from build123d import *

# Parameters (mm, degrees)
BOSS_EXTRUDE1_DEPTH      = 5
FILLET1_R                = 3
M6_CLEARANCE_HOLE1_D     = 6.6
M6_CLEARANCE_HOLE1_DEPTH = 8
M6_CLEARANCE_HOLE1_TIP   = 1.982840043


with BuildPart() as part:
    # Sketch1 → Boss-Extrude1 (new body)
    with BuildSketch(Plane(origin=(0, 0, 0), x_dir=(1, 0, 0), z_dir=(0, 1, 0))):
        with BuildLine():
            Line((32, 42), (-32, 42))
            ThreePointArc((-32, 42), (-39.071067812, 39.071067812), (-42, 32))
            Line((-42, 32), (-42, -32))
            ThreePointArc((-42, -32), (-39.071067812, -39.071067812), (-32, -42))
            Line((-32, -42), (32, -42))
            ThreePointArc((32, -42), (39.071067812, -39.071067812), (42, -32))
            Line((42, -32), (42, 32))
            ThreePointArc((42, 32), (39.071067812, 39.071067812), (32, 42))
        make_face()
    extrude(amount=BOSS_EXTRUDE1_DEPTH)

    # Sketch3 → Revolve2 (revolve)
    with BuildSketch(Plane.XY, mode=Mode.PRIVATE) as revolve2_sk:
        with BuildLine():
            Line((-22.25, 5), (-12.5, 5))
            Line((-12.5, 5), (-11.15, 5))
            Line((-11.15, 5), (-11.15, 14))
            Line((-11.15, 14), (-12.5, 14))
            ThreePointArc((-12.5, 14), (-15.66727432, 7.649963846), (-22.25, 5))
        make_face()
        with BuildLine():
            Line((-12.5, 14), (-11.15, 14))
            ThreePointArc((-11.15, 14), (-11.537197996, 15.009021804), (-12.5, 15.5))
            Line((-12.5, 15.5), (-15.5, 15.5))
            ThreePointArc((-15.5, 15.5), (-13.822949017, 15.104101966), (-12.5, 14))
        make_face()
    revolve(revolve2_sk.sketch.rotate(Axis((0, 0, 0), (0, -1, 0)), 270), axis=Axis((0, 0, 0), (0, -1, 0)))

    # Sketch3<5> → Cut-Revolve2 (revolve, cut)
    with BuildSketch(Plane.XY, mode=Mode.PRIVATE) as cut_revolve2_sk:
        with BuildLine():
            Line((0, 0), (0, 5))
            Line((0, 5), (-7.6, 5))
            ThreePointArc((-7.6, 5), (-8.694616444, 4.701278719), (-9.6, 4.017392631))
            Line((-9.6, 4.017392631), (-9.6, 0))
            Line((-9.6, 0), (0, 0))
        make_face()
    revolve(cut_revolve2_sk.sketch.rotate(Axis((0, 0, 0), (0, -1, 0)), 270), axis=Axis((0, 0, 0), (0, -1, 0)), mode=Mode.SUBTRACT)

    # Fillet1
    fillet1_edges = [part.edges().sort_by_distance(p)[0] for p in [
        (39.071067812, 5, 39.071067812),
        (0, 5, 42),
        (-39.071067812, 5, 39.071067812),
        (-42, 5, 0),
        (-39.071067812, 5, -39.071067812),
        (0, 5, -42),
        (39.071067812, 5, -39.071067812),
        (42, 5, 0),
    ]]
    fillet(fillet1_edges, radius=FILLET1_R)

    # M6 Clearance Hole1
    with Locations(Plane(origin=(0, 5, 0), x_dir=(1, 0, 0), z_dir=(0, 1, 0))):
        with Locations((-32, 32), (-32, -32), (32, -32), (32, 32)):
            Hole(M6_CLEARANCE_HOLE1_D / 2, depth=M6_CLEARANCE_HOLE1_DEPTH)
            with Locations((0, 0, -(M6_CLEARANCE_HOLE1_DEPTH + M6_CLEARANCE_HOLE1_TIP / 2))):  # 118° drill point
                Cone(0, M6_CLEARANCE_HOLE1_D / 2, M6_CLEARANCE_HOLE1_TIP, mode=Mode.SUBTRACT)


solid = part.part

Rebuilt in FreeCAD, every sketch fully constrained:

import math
import FreeCAD as App
import Part
import Sketcher


def edges_at(feature, points):
    """Names of the edges that pass closest to the given points."""
    edges = feature.Shape.Edges
    near = lambda p: min(range(len(edges)), key=lambda i: edges[i].distToShape(Part.Vertex(*p))[0])
    return sorted({f"Edge{near(p) + 1}" for p in points})

doc = App.newDocument("Part")
body = doc.addObject("PartDesign::Body", "Body")

sketch1 = body.newObject("Sketcher::SketchObject", "Sketch")
sketch1.AttachmentSupport = (doc.getObject("XZ_Plane"), [""])
sketch1.MapMode = "FlatFace"
sketch1.addGeometry([
    Part.LineSegment(App.Vector(32, -42, 0), App.Vector(-32, -42, 0)),
    Part.ArcOfCircle(Part.Circle(App.Vector(-32, -32, 0), App.Vector(0, 0, 1), 10), math.radians(180), math.radians(270)),
    Part.LineSegment(App.Vector(-42, -32, 0), App.Vector(-42, 32, 0)),
    Part.ArcOfCircle(Part.Circle(App.Vector(-32, 32, 0), App.Vector(0, 0, 1), 10), math.radians(90), math.radians(180)),
    Part.LineSegment(App.Vector(-32, 42, 0), App.Vector(32, 42, 0)),
    Part.ArcOfCircle(Part.Circle(App.Vector(32, 32, 0), App.Vector(0, 0, 1), 10), math.radians(0), math.radians(90)),
    Part.LineSegment(App.Vector(42, 32, 0), App.Vector(42, -32, 0)),
    Part.ArcOfCircle(Part.Circle(App.Vector(32, -32, 0), App.Vector(0, 0, 1), 10), math.radians(-90), math.radians(0)),
], False)
sketch1.addConstraint([
    Sketcher.Constraint("Tangent", 0, 2, 1, 2),
    Sketcher.Constraint("Tangent", 1, 1, 2, 1),
    Sketcher.Constraint("Tangent", 2, 2, 3, 2),
    Sketcher.Constraint("Tangent", 3, 1, 4, 1),
    Sketcher.Constraint("Tangent", 4, 2, 5, 2),
    Sketcher.Constraint("Tangent", 5, 1, 6, 1),
    Sketcher.Constraint("Tangent", 6, 2, 7, 2),
    Sketcher.Constraint("Tangent", 7, 1, 0, 1),
    Sketcher.Constraint("Horizontal", 0),
    Sketcher.Constraint("Vertical", 2),
    Sketcher.Constraint("Horizontal", 4),
    Sketcher.Constraint("Vertical", 6),
    Sketcher.Constraint("Equal", 1, 3),
    Sketcher.Constraint("Equal", 3, 5),
    Sketcher.Constraint("Equal", 5, 7),
    Sketcher.Constraint("Symmetric", 1, 3, 5, 3, -1, 1),
    Sketcher.Constraint("Equal", 4, 2),
    Sketcher.Constraint("Radius", 1, 10.0),
    Sketcher.Constraint("DistanceX", 0, 2, 0, 1, 64.0),
])
pad1 = body.newObject("PartDesign::Pad", "Pad")
pad1.Profile = sketch1
pad1.Length = 5
pad1.Reversed = True

sketch2 = body.newObject("Sketcher::SketchObject", "Sketch001")
sketch2.AttachmentSupport = (doc.getObject("XY_Plane"), [""])
sketch2.MapMode = "FlatFace"
sketch2.addGeometry([
    Part.LineSegment(App.Vector(-22.2, 5, 0), App.Vector(-11.2, 5, 0)),
    Part.LineSegment(App.Vector(-11.2, 5, 0), App.Vector(-11.2, 14, 0)),
    Part.ArcOfCircle(Part.Circle(App.Vector(-12.7, 14, 0), App.Vector(0, 0, 1), 1.5), math.radians(0), math.radians(84)),
    Part.LineSegment(App.Vector(-12.5, 15.5, 0), App.Vector(-15.5, 15.5, 0)),
    Part.ArcOfCircle(Part.Circle(App.Vector(-15.5, 11.7, 0), App.Vector(0, 0, 1), 3.8), math.radians(37), math.radians(90)),
    Part.ArcOfCircle(Part.Circle(App.Vector(-22.5, 15, 0), App.Vector(0, 0, 1), 10), math.radians(-89), math.radians(-6)),
], False)
sketch2.addConstraint([
    Sketcher.Constraint("Coincident", 0, 2, 1, 1),
    Sketcher.Constraint("Tangent", 1, 2, 2, 1),
    Sketcher.Constraint("Coincident", 2, 2, 3, 1),
    Sketcher.Constraint("Tangent", 3, 2, 4, 2),
    Sketcher.Constraint("Coincident", 4, 1, 5, 2),
    Sketcher.Constraint("Coincident", 5, 1, 0, 1),
    Sketcher.Constraint("Horizontal", 0),
    Sketcher.Constraint("Vertical", 1),
    Sketcher.Constraint("Horizontal", 3),
    Sketcher.Constraint("Horizontal", 1, 2, 4, 1),
    Sketcher.Constraint("Vertical", 2, 2, 4, 1),
    Sketcher.Constraint("Radius", 5, 10.0),
    Sketcher.Constraint("DistanceX", 3, 2, 3, 1, 3.0),
    Sketcher.Constraint("DistanceY", 1, 1, 1, 2, 9.0),
    Sketcher.Constraint("Radius", 4, 3.75),
    Sketcher.Constraint("DistanceX", 0, 1, 0, 2, 11.1),
    Sketcher.Constraint("DistanceY", -1, 1, 2, 3, 14.0),
    Sketcher.Constraint("DistanceX", 4, 3, -1, 1, 15.5),
    Sketcher.Constraint("DistanceX", 0, 2, -1, 1, 11.15),
])
revolution = body.newObject("PartDesign::Revolution", "Revolution")
revolution.Profile = sketch2
revolution.ReferenceAxis = (sketch2, ["V_Axis"])
revolution.Angle = 360

sketch3 = body.newObject("Sketcher::SketchObject", "Sketch002")
sketch3.AttachmentSupport = (doc.getObject("XY_Plane"), [""])
sketch3.MapMode = "FlatFace"
sketch3.addGeometry([
    Part.LineSegment(App.Vector(0, 0, 0), App.Vector(0, 5, 0)),
    Part.LineSegment(App.Vector(0, 5, 0), App.Vector(-7.6, 5, 0)),
    Part.ArcOfCircle(Part.Circle(App.Vector(-7.4, 2, 0), App.Vector(0, 0, 1), 3), math.radians(94), math.radians(138)),
    Part.LineSegment(App.Vector(-9.6, 4, 0), App.Vector(-9.6, 0, 0)),
    Part.LineSegment(App.Vector(-9.6, 0, 0), App.Vector(0, 0, 0)),
], False)
sketch3.addConstraint([
    Sketcher.Constraint("Coincident", 0, 2, 1, 1),
    Sketcher.Constraint("Coincident", 1, 2, 2, 1),
    Sketcher.Constraint("Coincident", 2, 2, 3, 1),
    Sketcher.Constraint("Coincident", 3, 2, 4, 1),
    Sketcher.Constraint("Coincident", 4, 2, 0, 1),
    Sketcher.Constraint("Vertical", 0),
    Sketcher.Constraint("Horizontal", 1),
    Sketcher.Constraint("Vertical", 3),
    Sketcher.Constraint("Horizontal", 4),
    Sketcher.Constraint("Coincident", 4, 2, -1, 1),
    Sketcher.Constraint("Radius", 2, 3.0),
    Sketcher.Constraint("DistanceY", 0, 1, 0, 2, 5.0),
    Sketcher.Constraint("DistanceX", 1, 2, 1, 1, 7.6),
    Sketcher.Constraint("DistanceX", 4, 1, 4, 2, 9.6),
    Sketcher.Constraint("DistanceY", 3, 2, 3, 1, 4.017393),
])
groove = body.newObject("PartDesign::Groove", "Groove")
groove.Profile = sketch3
groove.ReferenceAxis = (sketch3, ["V_Axis"])
groove.Angle = 360
doc.recompute()

fillet = body.newObject("PartDesign::Fillet", "Fillet")
fillet.Base = (groove, edges_at(groove, [
    (39.071, 5, 39.071),
    (0, 5, 42),
    (-39.071, 5, 39.071),
    (-42, 5, 0),
    (-39.071, 5, -39.071),
    (0, 5, -42),
    (39.071, 5, -39.071),
    (42, 5, 0),
]))
fillet.Radius = 3

sketch4 = body.newObject("Sketcher::SketchObject", "Sketch003")
sketch4.AttachmentSupport = (doc.getObject("XZ_Plane"), [""])
sketch4.MapMode = "FlatFace"
sketch4.AttachmentOffset = App.Placement(App.Vector(0, 0, -5), App.Rotation())
sketch4.addGeometry([
    Part.Circle(App.Vector(-32, -32, 0), App.Vector(0, 0, 1), 3.3),
    Part.Circle(App.Vector(-32, 32, 0), App.Vector(0, 0, 1), 3.3),
    Part.Circle(App.Vector(32, 32, 0), App.Vector(0, 0, 1), 3.3),
    Part.Circle(App.Vector(32, -32, 0), App.Vector(0, 0, 1), 3.3),
], False)
sketch4.addConstraint([
    Sketcher.Constraint("Equal", 0, 1),
    Sketcher.Constraint("Equal", 1, 2),
    Sketcher.Constraint("Equal", 2, 3),
    Sketcher.Constraint("Symmetric", 0, 3, 2, 3, -1, 1),
    Sketcher.Constraint("Symmetric", 1, 3, 3, 3, -1, 1),
    Sketcher.Constraint("Symmetric", 1, 3, 2, 3, -2),
    Sketcher.Constraint("Diameter", 0, 6.6),
    Sketcher.Constraint("DistanceX", 0, 3, -1, 1, 32.0),
    Sketcher.Constraint("DistanceY", 0, 3, -1, 1, 32.0),
])
doc.recompute()
hole = body.newObject("PartDesign::Hole", "Hole")
hole.Profile = sketch4
hole.ThreadType = "None"
hole.Diameter = 6.6
hole.DepthType = "Dimension"
hole.Depth = 8
hole.DrillPoint = "Angled"
hole.DrillPointAngle = 118
hole.Reversed = True

doc.recompute()
